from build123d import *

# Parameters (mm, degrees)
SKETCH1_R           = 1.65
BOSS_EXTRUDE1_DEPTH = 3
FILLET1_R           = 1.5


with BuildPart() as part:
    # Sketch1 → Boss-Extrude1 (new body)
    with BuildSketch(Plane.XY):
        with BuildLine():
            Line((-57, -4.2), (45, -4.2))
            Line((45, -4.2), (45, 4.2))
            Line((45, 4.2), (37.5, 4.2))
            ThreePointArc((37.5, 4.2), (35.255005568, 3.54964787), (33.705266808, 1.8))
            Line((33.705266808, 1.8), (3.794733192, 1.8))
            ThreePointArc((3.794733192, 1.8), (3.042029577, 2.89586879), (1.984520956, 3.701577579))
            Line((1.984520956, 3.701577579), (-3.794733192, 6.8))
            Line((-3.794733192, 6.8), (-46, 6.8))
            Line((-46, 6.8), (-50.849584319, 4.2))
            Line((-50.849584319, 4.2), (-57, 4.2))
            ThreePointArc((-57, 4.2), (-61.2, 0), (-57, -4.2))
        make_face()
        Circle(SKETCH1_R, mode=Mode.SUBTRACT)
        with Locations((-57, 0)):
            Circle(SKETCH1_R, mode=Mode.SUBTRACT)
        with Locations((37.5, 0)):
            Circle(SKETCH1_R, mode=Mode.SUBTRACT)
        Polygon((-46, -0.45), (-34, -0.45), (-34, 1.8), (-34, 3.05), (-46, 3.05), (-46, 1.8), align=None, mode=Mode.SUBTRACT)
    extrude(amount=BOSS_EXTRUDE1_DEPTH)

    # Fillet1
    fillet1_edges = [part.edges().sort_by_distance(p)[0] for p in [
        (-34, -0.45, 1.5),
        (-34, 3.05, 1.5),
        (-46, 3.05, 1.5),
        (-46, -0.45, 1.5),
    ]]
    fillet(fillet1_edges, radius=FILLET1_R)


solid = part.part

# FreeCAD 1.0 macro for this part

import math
import FreeCAD as App
import Part
import Sketcher

V = App.Vector
Q = App.Units.Quantity


def edges_at(feature, points):
    """Names of the edges that pass closest to the given points."""
    edges = feature.Shape.Edges
    near = lambda p: min(range(len(edges)), key=lambda i: edges[i].distToShape(Part.Vertex(*p))[0])
    return sorted({f"Edge{near(p) + 1}" for p in points})

doc = App.newDocument("Part")
body = doc.addObject("PartDesign::Body", "Body")

sketch1 = body.newObject("Sketcher::SketchObject", "Sketch")
sketch1.AttachmentSupport = (doc.getObject("XY_Plane"), [""])
sketch1.MapMode = "FlatFace"
sketch1.addGeometry([
    Part.LineSegment(V(-57, -4.2, 0), V(45, -4.2, 0)),
    Part.LineSegment(V(45, -4.2, 0), V(45, 4.2, 0)),
    Part.LineSegment(V(45, 4.2, 0), V(37.5, 4.2, 0)),
    Part.ArcOfCircle(Part.Circle(V(37.5, 0, 0), V(0, 0, 1), 4.2), math.radians(90), math.radians(155)),
    Part.LineSegment(V(33.7, 1.8, 0), V(3.8, 1.8, 0)),
    Part.ArcOfCircle(Part.Circle(V(0, 0, 0), V(0, 0, 1), 4.2), math.radians(25), math.radians(62)),
    Part.LineSegment(V(2, 3.7, 0), V(-3.8, 6.8, 0)),
    Part.LineSegment(V(-3.8, 6.8, 0), V(-46, 6.8, 0)),
    Part.LineSegment(V(-46, 6.8, 0), V(-50.8, 4.2, 0)),
    Part.LineSegment(V(-50.8, 4.2, 0), V(-57, 4.2, 0)),
    Part.ArcOfCircle(Part.Circle(V(-57, 0, 0), V(0, 0, 1), 4.2), math.radians(90), math.radians(270)),
    Part.Circle(V(-57, 0, 0), V(0, 0, 1), 1.6),
    Part.Circle(V(0, 0, 0), V(0, 0, 1), 1.6),
    Part.Circle(V(37.5, 0, 0), V(0, 0, 1), 1.6),
    Part.LineSegment(V(-34, -0.5, 0), V(-46, -0.5, 0)),
    Part.LineSegment(V(-46, -0.5, 0), V(-46, 3, 0)),
    Part.LineSegment(V(-46, 3, 0), V(-34, 3, 0)),
    Part.LineSegment(V(-34, 3, 0), V(-34, -0.5, 0)),
], False)
sketch1.addConstraint([
    Sketcher.Constraint("Coincident", 0, 2, 1, 1),
    Sketcher.Constraint("Coincident", 1, 2, 2, 1),
    Sketcher.Constraint("Tangent", 2, 2, 3, 1),
    Sketcher.Constraint("Coincident", 3, 2, 4, 1),
    Sketcher.Constraint("Coincident", 4, 2, 5, 1),
    Sketcher.Constraint("Tangent", 5, 2, 6, 1),
    Sketcher.Constraint("Coincident", 6, 2, 7, 1),
    Sketcher.Constraint("Coincident", 7, 2, 8, 1),
    Sketcher.Constraint("Coincident", 8, 2, 9, 1),
    Sketcher.Constraint("Tangent", 9, 2, 10, 1),
    Sketcher.Constraint("Tangent", 10, 2, 0, 1),
    Sketcher.Constraint("Coincident", 14, 2, 15, 1),
    Sketcher.Constraint("Coincident", 15, 2, 16, 1),
    Sketcher.Constraint("Coincident", 16, 2, 17, 1),
    Sketcher.Constraint("Coincident", 17, 2, 14, 1),
    Sketcher.Constraint("Horizontal", 0),
    Sketcher.Constraint("Vertical", 1),
    Sketcher.Constraint("Horizontal", 2),
    Sketcher.Constraint("Horizontal", 4),
    Sketcher.Constraint("Horizontal", 7),
    Sketcher.Constraint("Horizontal", 9),
    Sketcher.Constraint("Horizontal", 14),
    Sketcher.Constraint("Vertical", 15),
    Sketcher.Constraint("Horizontal", 16),
    Sketcher.Constraint("Vertical", 17),
    Sketcher.Constraint("Coincident", 5, 3, -1, 1),
    Sketcher.Constraint("Coincident", 12, 3, -1, 1),
    Sketcher.Constraint("Coincident", 11, 3, 10, 3),
    Sketcher.Constraint("Coincident", 13, 3, 3, 3),
    Sketcher.Constraint("Equal", 3, 5),
    Sketcher.Constraint("Equal", 5, 10),
    Sketcher.Constraint("Equal", 11, 12),
    Sketcher.Constraint("Equal", 12, 13),
    Sketcher.Constraint("PointOnObject", 3, 3, -1),
    Sketcher.Constraint("PointOnObject", 10, 3, -1),
    Sketcher.Constraint("Vertical", 7, 2, 14, 2),
    Sketcher.Constraint("Diameter", 11, Q("3.3 mm")),
    Sketcher.Constraint("Radius", 3, Q("4.2 mm")),
    Sketcher.Constraint("DistanceX", 0, 1, 0, 2, Q("102 mm")),
    Sketcher.Constraint("DistanceX", 14, 2, 14, 1, Q("12 mm")),
    Sketcher.Constraint("DistanceX", 2, 2, 2, 1, Q("7.5 mm")),
    Sketcher.Constraint("DistanceY", 15, 1, 15, 2, Q("3.5 mm")),
    Sketcher.Constraint("DistanceX", 10, 3, -1, 1, Q("57 mm")),
    Sketcher.Constraint("DistanceX", 7, 2, -1, 1, Q("46 mm")),
    Sketcher.Constraint("DistanceY", 0, 2, 3, 2, Q("6 mm")),
    Sketcher.Constraint("DistanceY", 4, 2, 6, 2, Q("5 mm")),
    Sketcher.Constraint("DistanceX", 6, 2, 3, 2, Q("37.5 mm")),
    Sketcher.Constraint("DistanceY", 14, 2, -1, 1, Q("0.45 mm")),
    Sketcher.Constraint("DistanceX", 9, 2, 9, 1, Q("6.150416 mm")),
])
pad1 = body.newObject("PartDesign::Pad", "Pad")
pad1.Profile = sketch1
pad1.Length = 3
doc.recompute()

fillet = body.newObject("PartDesign::Fillet", "Fillet")
fillet.Base = (pad1, edges_at(pad1, [
    (-34, -0.45, 1.5),
    (-34, 3.05, 1.5),
    (-46, 3.05, 1.5),
    (-46, -0.45, 1.5),
]))
fillet.Radius = 1.5

doc.recompute()
